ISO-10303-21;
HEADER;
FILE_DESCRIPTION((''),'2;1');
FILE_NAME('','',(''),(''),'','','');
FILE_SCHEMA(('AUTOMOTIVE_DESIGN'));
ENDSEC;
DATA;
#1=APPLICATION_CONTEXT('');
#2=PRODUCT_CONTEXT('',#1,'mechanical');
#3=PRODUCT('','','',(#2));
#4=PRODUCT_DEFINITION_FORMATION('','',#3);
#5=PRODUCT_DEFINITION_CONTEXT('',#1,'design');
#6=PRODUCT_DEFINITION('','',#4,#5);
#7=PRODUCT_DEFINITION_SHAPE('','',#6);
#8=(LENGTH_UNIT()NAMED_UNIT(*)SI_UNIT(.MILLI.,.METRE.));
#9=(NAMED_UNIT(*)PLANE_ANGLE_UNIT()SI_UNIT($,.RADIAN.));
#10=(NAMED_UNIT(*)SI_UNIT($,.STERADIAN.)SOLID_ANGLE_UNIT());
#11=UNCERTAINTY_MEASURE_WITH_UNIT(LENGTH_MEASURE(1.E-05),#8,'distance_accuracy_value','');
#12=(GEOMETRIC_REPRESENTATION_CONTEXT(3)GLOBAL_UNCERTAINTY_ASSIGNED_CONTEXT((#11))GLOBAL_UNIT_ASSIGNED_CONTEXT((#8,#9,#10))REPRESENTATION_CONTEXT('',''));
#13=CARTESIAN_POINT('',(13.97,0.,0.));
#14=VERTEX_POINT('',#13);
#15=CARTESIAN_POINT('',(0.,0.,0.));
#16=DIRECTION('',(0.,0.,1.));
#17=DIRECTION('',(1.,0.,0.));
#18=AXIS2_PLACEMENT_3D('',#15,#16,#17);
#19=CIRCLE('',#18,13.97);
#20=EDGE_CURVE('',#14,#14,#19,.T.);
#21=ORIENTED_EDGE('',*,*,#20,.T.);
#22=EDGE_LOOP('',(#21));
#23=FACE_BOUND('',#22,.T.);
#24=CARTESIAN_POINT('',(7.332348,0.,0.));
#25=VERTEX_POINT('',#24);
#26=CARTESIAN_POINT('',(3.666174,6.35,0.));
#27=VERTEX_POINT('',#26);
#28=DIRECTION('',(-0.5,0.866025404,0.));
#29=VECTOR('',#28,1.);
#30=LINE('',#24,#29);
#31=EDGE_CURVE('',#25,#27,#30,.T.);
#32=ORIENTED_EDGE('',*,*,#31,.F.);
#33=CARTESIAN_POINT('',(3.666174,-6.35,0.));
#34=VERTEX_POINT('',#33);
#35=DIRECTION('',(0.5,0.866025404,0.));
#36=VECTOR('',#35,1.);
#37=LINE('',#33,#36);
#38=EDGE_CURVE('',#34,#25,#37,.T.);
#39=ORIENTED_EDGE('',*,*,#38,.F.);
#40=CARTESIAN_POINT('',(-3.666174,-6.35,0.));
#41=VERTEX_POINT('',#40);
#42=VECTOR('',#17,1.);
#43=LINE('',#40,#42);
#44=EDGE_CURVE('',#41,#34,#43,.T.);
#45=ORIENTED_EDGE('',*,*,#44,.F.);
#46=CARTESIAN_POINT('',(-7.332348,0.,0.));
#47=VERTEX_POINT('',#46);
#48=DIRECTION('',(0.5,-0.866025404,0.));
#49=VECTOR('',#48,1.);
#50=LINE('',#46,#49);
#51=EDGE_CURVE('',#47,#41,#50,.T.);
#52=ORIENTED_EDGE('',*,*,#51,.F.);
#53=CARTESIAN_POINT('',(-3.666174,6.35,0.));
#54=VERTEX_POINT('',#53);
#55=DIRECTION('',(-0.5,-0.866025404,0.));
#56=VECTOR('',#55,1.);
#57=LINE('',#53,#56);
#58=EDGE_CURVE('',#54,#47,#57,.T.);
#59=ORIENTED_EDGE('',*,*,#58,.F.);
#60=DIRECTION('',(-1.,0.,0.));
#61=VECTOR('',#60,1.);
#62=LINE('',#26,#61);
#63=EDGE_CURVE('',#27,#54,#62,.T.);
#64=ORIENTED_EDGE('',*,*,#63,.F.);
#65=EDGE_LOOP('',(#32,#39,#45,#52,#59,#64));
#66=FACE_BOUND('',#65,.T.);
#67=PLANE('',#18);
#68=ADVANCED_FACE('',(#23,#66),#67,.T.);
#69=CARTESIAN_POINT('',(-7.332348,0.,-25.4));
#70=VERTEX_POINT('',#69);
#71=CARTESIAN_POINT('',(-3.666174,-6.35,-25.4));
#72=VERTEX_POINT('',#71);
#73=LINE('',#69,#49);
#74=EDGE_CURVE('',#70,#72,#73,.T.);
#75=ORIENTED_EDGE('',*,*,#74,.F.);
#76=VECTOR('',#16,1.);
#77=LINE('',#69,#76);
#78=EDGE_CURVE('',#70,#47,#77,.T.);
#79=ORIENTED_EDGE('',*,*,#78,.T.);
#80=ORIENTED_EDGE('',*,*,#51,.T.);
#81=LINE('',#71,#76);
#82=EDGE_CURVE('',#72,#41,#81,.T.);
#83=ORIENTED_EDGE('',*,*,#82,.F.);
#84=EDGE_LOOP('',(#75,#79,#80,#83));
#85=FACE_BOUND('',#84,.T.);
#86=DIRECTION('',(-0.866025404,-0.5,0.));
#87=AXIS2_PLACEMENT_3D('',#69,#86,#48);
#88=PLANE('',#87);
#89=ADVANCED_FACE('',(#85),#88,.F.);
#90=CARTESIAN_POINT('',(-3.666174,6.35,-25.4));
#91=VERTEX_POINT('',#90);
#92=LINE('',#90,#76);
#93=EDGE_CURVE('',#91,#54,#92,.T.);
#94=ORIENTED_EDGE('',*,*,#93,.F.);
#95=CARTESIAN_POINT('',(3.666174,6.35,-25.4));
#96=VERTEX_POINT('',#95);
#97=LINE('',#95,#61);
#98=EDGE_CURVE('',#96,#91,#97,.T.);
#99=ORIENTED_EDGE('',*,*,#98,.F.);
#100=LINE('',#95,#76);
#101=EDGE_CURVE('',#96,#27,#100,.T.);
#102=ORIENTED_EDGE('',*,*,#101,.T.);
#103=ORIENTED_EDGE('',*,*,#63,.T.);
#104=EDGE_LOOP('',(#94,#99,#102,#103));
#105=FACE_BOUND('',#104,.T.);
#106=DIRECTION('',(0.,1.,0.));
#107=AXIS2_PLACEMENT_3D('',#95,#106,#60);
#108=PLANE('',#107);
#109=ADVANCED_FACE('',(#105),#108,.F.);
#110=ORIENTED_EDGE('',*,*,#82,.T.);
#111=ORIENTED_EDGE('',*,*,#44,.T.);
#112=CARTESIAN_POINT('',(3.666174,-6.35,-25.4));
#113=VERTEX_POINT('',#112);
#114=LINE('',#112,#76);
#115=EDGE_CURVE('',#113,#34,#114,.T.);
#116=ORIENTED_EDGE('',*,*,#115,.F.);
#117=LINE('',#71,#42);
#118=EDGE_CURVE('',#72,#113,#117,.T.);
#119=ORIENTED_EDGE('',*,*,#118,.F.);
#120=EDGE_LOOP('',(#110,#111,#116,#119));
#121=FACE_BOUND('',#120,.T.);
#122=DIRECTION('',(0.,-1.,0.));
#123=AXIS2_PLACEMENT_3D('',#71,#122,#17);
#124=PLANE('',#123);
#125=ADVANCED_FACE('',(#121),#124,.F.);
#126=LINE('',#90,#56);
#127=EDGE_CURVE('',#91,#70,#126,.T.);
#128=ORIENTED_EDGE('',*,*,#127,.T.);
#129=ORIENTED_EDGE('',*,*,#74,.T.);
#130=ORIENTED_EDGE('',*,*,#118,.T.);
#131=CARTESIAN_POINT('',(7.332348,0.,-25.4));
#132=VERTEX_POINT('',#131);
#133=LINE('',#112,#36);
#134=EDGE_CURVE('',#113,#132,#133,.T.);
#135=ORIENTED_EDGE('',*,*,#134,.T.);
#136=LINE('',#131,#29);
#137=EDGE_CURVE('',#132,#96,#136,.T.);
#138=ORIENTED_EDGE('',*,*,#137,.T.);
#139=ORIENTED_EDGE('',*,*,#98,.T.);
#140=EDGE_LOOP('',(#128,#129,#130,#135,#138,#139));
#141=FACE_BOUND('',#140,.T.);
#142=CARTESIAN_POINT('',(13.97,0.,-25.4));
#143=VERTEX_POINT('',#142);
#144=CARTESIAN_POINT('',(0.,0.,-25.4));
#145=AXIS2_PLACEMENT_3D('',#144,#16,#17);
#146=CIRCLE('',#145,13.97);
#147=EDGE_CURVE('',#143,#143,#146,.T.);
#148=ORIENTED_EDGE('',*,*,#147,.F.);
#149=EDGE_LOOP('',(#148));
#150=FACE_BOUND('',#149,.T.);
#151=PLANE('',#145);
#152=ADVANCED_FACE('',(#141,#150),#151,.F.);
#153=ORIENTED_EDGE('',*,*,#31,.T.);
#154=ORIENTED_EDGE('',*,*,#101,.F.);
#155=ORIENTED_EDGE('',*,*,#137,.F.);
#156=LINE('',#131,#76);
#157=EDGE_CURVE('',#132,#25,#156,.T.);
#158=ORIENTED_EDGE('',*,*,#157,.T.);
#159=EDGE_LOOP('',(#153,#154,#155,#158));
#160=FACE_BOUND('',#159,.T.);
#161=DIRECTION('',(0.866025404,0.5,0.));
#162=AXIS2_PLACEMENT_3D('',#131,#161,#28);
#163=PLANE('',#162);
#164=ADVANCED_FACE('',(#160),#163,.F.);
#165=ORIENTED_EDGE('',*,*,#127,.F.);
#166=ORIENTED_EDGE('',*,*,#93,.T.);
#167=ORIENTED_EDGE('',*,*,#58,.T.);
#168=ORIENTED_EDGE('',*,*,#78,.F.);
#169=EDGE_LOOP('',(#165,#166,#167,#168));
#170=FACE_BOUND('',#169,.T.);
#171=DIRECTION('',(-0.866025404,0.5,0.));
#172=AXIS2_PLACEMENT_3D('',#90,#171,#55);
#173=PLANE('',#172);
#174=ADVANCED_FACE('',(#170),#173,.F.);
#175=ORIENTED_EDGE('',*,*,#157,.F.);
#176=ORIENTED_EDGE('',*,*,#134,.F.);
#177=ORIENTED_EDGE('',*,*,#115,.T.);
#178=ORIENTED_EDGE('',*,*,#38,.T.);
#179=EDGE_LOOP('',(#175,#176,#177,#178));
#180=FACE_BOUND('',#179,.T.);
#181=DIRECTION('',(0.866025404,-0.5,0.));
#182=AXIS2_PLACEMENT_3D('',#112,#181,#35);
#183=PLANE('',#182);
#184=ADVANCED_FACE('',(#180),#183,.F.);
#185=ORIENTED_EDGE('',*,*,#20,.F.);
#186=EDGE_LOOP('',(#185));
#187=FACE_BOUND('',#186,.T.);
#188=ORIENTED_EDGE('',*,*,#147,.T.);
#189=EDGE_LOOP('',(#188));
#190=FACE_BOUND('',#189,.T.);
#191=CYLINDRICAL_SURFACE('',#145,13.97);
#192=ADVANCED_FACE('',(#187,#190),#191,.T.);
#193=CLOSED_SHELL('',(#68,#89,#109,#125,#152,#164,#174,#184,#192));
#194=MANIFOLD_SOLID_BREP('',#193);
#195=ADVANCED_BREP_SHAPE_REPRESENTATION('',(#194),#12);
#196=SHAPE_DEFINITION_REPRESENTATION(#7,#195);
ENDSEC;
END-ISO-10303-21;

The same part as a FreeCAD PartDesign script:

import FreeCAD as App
import Part
import Sketcher
Q = App.Units.Quantity


def add_polygon(sketch, points):
    """Adds a closed chain of lines whose ends are joined by coincident constraints."""
    first, n = sketch.GeometryCount, len(points)
    for a, b in zip(points, points[1:] + points[:1]):
        sketch.addGeometry(Part.LineSegment(App.Vector(*a, 0), App.Vector(*b, 0)), False)
    for i in range(n):
        sketch.addConstraint(Sketcher.Constraint("Coincident", first + i, 2, first + (i + 1) % n, 1))

doc = App.newDocument("Part")
body = doc.addObject("PartDesign::Body", "Body")

sketch1 = body.newObject("Sketcher::SketchObject", "Sketch")
sketch1.AttachmentSupport = (doc.getObject("XY_Plane"), [""])
sketch1.MapMode = "FlatFace"
sketch1.addGeometry(Part.Circle(App.Vector(0, 0, 0), App.Vector(0, 0, 1), 14), False)
add_polygon(sketch1, [(-7, 0), (-4, 6), (4, 6), (7, 0), (4, -6), (-4, -6)])
sketch1.addConstraint([
    Sketcher.Constraint("Horizontal", 2),
    Sketcher.Constraint("Horizontal", 5),
    Sketcher.Constraint("Coincident", 0, 3, -1, 1),
    Sketcher.Constraint("Symmetric", 1, 2, 4, 2, -1, 1),
    Sketcher.Constraint("Symmetric", 3, 2, 6, 2, -1, 1),
    Sketcher.Constraint("PointOnObject", 3, 2, -1),
    Sketcher.Constraint("Parallel", 3, 6),
    Sketcher.Constraint("Vertical", 2, 2, 4, 2),
    Sketcher.Constraint("Diameter", 0, Q("1.1 in")),
    Sketcher.Constraint("Angle", 1, Q("60 deg")),
    Sketcher.Constraint("DistanceY", 4, 2, 2, 2, Q("0.5 in")),
    Sketcher.Constraint("DistanceX", 2, 1, 2, 2, Q("7.332348 mm")),
])
pad1 = body.newObject("PartDesign::Pad", "Pad")
pad1.Profile = sketch1
pad1.Length = Q("1 in")
pad1.Reversed = True

doc.recompute()
